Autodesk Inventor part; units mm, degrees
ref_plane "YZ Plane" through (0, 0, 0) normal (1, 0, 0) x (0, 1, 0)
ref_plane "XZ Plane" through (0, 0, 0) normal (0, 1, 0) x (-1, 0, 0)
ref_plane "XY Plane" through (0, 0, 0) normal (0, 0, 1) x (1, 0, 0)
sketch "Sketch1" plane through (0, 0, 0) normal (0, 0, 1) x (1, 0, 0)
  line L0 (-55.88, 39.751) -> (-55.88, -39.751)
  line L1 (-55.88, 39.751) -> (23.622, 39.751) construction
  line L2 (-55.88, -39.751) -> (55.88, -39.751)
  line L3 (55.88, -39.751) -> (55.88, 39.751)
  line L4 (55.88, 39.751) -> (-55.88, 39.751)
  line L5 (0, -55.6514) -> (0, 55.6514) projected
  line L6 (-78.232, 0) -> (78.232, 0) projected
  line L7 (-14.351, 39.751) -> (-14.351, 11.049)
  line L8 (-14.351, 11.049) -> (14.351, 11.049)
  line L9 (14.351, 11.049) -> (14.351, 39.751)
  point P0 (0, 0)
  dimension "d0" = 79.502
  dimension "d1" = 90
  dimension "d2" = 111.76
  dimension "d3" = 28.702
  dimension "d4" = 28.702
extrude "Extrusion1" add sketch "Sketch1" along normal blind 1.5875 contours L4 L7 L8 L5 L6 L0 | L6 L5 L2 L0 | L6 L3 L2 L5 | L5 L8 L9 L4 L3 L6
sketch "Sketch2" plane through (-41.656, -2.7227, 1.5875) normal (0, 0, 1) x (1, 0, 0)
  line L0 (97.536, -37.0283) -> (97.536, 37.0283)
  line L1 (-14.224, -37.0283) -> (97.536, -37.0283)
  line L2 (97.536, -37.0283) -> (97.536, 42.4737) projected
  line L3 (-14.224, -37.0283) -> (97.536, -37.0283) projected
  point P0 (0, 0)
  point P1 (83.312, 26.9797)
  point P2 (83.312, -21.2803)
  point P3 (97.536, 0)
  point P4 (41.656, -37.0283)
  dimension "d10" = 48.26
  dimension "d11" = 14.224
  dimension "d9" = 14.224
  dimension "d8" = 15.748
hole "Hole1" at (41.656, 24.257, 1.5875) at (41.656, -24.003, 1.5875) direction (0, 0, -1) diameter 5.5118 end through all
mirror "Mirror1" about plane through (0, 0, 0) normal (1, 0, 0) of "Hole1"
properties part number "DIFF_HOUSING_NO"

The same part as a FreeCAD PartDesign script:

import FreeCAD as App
import Part
import Sketcher

V = App.Vector
Q = App.Units.Quantity


def add_polygon(sketch, points):
    """Adds a closed chain of lines whose ends are joined by coincident constraints."""
    first, n = sketch.GeometryCount, len(points)
    for a, b in zip(points, points[1:] + points[:1]):
        sketch.addGeometry(Part.LineSegment(App.Vector(*a, 0), App.Vector(*b, 0)), False)
    for i in range(n):
        sketch.addConstraint(Sketcher.Constraint("Coincident", first + i, 2, first + (i + 1) % n, 1))

doc = App.newDocument("Part")
body = doc.addObject("PartDesign::Body", "Body")

sketch1 = body.newObject("Sketcher::SketchObject", "Sketch")
sketch1.AttachmentSupport = (doc.getObject("XY_Plane"), [""])
sketch1.MapMode = "FlatFace"
add_polygon(sketch1, [(-14, 40), (-56, 40), (-56, -40), (56, -40), (56, 40), (14, 40), (14, 11), (-14, 11)])
sketch1.addConstraint(Sketcher.Constraint("Horizontal", 0))
sketch1.addConstraint(Sketcher.Constraint("Vertical", 1))
sketch1.addConstraint(Sketcher.Constraint("Horizontal", 2))
sketch1.addConstraint(Sketcher.Constraint("Vertical", 3))
sketch1.addConstraint(Sketcher.Constraint("Horizontal", 4))
sketch1.addConstraint(Sketcher.Constraint("Vertical", 5))
sketch1.addConstraint(Sketcher.Constraint("Horizontal", 6))
sketch1.addConstraint(Sketcher.Constraint("Vertical", 7))
sketch1.addConstraint(Sketcher.Constraint("Symmetric", 0, 2, 2, 2, -1, 1))
sketch1.addConstraint(Sketcher.Constraint("Symmetric", 4, 2, 7, 2, -2))
sketch1.addConstraint(Sketcher.Constraint("Equal", 6, 5))
sketch1.addConstraint(Sketcher.Constraint("DistanceX", 2, 1, 2, 2, Q("4.4 in")))
sketch1.addConstraint(Sketcher.Constraint("DistanceX", 6, 2, 6, 1, Q("1.13 in")))
sketch1.addConstraint(Sketcher.Constraint("DistanceY", 1, 2, 1, 1, Q("3.13 in")))
pad1 = body.newObject("PartDesign::Pad", "Pad")
pad1.Profile = sketch1
pad1.Length = Q("0.0625 in")

sketch2 = body.newObject("Sketcher::SketchObject", "Sketch001")
sketch2.AttachmentSupport = (doc.getObject("XY_Plane"), [""])
sketch2.MapMode = "FlatFace"
sketch2.AttachmentOffset = App.Placement(V(0, 0, 0.0625 * 25.4), App.Rotation())
sketch2.addGeometry(Part.Circle(V(41.7, 24.3, 0), V(0, 0, 1), 2.8), False)
sketch2.addGeometry(Part.Circle(V(41.7, -24, 0), V(0, 0, 1), 2.8), False)
sketch2.addConstraint(Sketcher.Constraint("Equal", 0, 1))
sketch2.addConstraint(Sketcher.Constraint("Vertical", 0, 3, 1, 3))
sketch2.addConstraint(Sketcher.Constraint("Diameter", 0, Q("0.217 in")))
sketch2.addConstraint(Sketcher.Constraint("DistanceY", 1, 3, 0, 3, Q("1.9 in")))
sketch2.addConstraint(Sketcher.Constraint("DistanceX", -1, 1, 0, 3, Q("1.64 in")))
sketch2.addConstraint(Sketcher.Constraint("DistanceY", -1, 1, 0, 3, Q("0.955 in")))
doc.recompute()
hole = body.newObject("PartDesign::Hole", "Hole")
hole.Profile = sketch2
hole.ThreadType = "None"
hole.Diameter = Q("0.217 in")
hole.DepthType = "ThroughAll"
doc.recompute()

mirrored = body.newObject("PartDesign::Mirrored", "Mirrored")
mirrored.Originals = [hole]
mirrored.MirrorPlane = (doc.getObject("YZ_Plane"), [""])
body.Tip = mirrored

doc.recompute()
